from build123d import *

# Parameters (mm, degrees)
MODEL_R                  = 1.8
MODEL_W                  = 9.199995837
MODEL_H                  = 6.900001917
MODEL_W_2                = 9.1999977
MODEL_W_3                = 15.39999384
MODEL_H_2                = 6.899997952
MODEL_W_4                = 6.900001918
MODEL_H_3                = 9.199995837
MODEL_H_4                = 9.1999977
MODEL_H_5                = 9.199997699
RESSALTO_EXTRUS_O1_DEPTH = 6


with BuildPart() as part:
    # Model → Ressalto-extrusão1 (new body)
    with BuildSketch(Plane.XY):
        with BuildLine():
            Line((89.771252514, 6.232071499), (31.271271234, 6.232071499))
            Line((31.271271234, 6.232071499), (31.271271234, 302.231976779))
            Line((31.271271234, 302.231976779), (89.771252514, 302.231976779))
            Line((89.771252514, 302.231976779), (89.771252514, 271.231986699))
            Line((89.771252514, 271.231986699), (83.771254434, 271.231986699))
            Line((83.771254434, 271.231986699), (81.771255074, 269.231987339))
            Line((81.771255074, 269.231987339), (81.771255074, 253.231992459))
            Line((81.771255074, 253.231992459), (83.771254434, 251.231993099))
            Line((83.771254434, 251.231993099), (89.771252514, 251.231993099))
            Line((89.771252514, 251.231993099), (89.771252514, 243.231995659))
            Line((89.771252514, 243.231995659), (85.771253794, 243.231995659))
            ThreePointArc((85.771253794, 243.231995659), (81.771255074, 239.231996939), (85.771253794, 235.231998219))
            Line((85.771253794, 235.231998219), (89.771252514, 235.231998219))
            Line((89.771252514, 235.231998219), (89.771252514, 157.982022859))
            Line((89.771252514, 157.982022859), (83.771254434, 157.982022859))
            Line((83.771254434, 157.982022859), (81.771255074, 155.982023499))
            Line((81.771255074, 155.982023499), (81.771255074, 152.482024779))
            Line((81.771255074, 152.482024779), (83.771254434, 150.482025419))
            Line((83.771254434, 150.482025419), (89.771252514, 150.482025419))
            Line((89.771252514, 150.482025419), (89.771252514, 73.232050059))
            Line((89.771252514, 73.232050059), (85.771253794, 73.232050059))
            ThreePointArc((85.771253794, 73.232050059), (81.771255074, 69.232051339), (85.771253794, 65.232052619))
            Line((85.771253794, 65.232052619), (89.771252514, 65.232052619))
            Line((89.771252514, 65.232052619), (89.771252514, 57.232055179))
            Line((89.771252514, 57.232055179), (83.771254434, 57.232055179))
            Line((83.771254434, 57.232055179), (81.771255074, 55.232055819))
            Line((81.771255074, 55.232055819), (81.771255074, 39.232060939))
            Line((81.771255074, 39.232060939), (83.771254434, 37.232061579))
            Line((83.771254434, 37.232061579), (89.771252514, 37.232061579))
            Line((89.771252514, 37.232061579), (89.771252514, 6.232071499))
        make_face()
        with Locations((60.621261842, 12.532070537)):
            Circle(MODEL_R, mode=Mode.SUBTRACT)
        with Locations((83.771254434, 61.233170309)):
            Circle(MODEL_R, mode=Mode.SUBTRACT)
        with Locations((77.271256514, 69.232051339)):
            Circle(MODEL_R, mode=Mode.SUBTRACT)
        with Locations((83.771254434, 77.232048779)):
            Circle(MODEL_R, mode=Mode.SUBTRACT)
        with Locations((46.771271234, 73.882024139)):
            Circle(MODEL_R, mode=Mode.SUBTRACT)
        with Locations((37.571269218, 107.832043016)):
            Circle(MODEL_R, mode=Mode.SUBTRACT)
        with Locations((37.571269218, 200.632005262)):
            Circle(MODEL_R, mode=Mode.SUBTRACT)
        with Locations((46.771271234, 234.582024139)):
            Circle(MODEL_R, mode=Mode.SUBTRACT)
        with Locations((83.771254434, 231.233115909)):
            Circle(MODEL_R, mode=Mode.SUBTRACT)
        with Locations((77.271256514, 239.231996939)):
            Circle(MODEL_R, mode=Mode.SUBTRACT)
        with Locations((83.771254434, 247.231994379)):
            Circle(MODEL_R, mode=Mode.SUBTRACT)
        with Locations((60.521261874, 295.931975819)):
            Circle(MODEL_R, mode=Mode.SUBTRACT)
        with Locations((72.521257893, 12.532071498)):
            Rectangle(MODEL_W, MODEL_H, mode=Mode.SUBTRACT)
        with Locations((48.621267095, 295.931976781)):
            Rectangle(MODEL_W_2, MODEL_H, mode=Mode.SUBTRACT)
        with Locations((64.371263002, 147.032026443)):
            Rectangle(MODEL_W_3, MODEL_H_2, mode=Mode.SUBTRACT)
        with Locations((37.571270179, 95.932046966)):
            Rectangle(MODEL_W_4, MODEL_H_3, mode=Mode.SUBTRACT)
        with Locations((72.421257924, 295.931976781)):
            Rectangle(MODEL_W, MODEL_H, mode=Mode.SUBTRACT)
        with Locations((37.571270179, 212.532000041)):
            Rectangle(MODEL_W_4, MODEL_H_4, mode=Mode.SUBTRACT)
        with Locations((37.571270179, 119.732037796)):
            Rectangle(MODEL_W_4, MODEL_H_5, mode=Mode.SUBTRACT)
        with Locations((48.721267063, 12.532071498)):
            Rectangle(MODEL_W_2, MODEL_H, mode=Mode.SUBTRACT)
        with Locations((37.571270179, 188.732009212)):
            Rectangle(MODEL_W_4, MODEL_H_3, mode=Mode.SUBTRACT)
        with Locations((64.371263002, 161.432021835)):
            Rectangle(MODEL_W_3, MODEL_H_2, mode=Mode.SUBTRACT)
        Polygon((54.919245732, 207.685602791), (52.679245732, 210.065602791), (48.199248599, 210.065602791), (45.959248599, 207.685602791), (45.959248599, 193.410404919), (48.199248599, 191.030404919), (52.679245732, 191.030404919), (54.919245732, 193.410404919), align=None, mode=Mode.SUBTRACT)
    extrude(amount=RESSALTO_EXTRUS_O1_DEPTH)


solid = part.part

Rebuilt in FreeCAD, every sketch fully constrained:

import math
import FreeCAD as App
import Part
import Sketcher
Q = App.Units.Quantity


def add_polygon(sketch, points):
    """Adds a closed chain of lines whose ends are joined by coincident constraints."""
    first, n = sketch.GeometryCount, len(points)
    for a, b in zip(points, points[1:] + points[:1]):
        sketch.addGeometry(Part.LineSegment(App.Vector(*a, 0), App.Vector(*b, 0)), False)
    for i in range(n):
        sketch.addConstraint(Sketcher.Constraint("Coincident", first + i, 2, first + (i + 1) % n, 1))

doc = App.newDocument("Part")
body = doc.addObject("PartDesign::Body", "Body")

# Sketch on XY plane
sketch1 = body.newObject("Sketcher::SketchObject", "Sketch")
sketch1.AttachmentSupport = (doc.getObject("XY_Plane"), [""])
sketch1.MapMode = "FlatFace"
sketch1.addGeometry(Part.LineSegment(App.Vector(31.3, 6.2, 0), App.Vector(89.8, 6.2, 0)), False)  # 0
sketch1.addGeometry(Part.LineSegment(App.Vector(89.8, 6.2, 0), App.Vector(89.8, 37.2, 0)), False)  # 1
sketch1.addGeometry(Part.LineSegment(App.Vector(89.8, 37.2, 0), App.Vector(83.8, 37.2, 0)), False)  # 2
sketch1.addGeometry(Part.LineSegment(App.Vector(83.8, 37.2, 0), App.Vector(81.8, 39.2, 0)), False)  # 3
sketch1.addGeometry(Part.LineSegment(App.Vector(81.8, 39.2, 0), App.Vector(81.8, 55.2, 0)), False)  # 4
sketch1.addGeometry(Part.LineSegment(App.Vector(81.8, 55.2, 0), App.Vector(83.8, 57.2, 0)), False)  # 5
sketch1.addGeometry(Part.LineSegment(App.Vector(83.8, 57.2, 0), App.Vector(89.8, 57.2, 0)), False)  # 6
sketch1.addGeometry(Part.LineSegment(App.Vector(89.8, 57.2, 0), App.Vector(89.8, 65.2, 0)), False)  # 7
sketch1.addGeometry(Part.LineSegment(App.Vector(89.8, 65.2, 0), App.Vector(85.8, 65.2, 0)), False)  # 8
sketch1.addGeometry(Part.ArcOfCircle(Part.Circle(App.Vector(85.8, 69.2, 0), App.Vector(0, 0, 1), 4), math.radians(90), math.radians(270)), False)  # 9
sketch1.addGeometry(Part.LineSegment(App.Vector(85.8, 73.2, 0), App.Vector(89.8, 73.2, 0)), False)  # 10
sketch1.addGeometry(Part.LineSegment(App.Vector(89.8, 73.2, 0), App.Vector(89.8, 150.5, 0)), False)  # 11
sketch1.addGeometry(Part.LineSegment(App.Vector(89.8, 150.5, 0), App.Vector(83.8, 150.5, 0)), False)  # 12
sketch1.addGeometry(Part.LineSegment(App.Vector(83.8, 150.5, 0), App.Vector(81.8, 152.5, 0)), False)  # 13
sketch1.addGeometry(Part.LineSegment(App.Vector(81.8, 152.5, 0), App.Vector(81.8, 156, 0)), False)  # 14
sketch1.addGeometry(Part.LineSegment(App.Vector(81.8, 156, 0), App.Vector(83.8, 158, 0)), False)  # 15
sketch1.addGeometry(Part.LineSegment(App.Vector(83.8, 158, 0), App.Vector(89.8, 158, 0)), False)  # 16
sketch1.addGeometry(Part.LineSegment(App.Vector(89.8, 158, 0), App.Vector(89.8, 235.2, 0)), False)  # 17
sketch1.addGeometry(Part.LineSegment(App.Vector(89.8, 235.2, 0), App.Vector(85.8, 235.2, 0)), False)  # 18
sketch1.addGeometry(Part.ArcOfCircle(Part.Circle(App.Vector(85.8, 239.2, 0), App.Vector(0, 0, 1), 4), math.radians(90), math.radians(270)), False)  # 19
sketch1.addGeometry(Part.LineSegment(App.Vector(85.8, 243.2, 0), App.Vector(89.8, 243.2, 0)), False)  # 20
sketch1.addGeometry(Part.LineSegment(App.Vector(89.8, 243.2, 0), App.Vector(89.8, 251.2, 0)), False)  # 21
sketch1.addGeometry(Part.LineSegment(App.Vector(89.8, 251.2, 0), App.Vector(83.8, 251.2, 0)), False)  # 22
sketch1.addGeometry(Part.LineSegment(App.Vector(83.8, 251.2, 0), App.Vector(81.8, 253.2, 0)), False)  # 23
sketch1.addGeometry(Part.LineSegment(App.Vector(81.8, 253.2, 0), App.Vector(81.8, 269.2, 0)), False)  # 24
sketch1.addGeometry(Part.LineSegment(App.Vector(81.8, 269.2, 0), App.Vector(83.8, 271.2, 0)), False)  # 25
sketch1.addGeometry(Part.LineSegment(App.Vector(83.8, 271.2, 0), App.Vector(89.8, 271.2, 0)), False)  # 26
sketch1.addGeometry(Part.LineSegment(App.Vector(89.8, 271.2, 0), App.Vector(89.8, 302.2, 0)), False)  # 27
sketch1.addGeometry(Part.LineSegment(App.Vector(89.8, 302.2, 0), App.Vector(31.3, 302.2, 0)), False)  # 28
sketch1.addGeometry(Part.LineSegment(App.Vector(31.3, 302.2, 0), App.Vector(31.3, 6.2, 0)), False)  # 29
sketch1.addGeometry(Part.Circle(App.Vector(83.8, 61.2, 0), App.Vector(0, 0, 1), 1.8), False)  # 30
sketch1.addGeometry(Part.Circle(App.Vector(83.8, 77.2, 0), App.Vector(0, 0, 1), 1.8), False)  # 31
sketch1.addGeometry(Part.Circle(App.Vector(77.3, 69.2, 0), App.Vector(0, 0, 1), 1.8), False)  # 32
add_polygon(sketch1, [(67.9, 9.1), (67.9, 16), (77.1, 16), (77.1, 9.1)])  # lines 33-36
sketch1.addGeometry(Part.Circle(App.Vector(60.6, 12.5, 0), App.Vector(0, 0, 1), 1.8), False)  # 37
add_polygon(sketch1, [(56.7, 143.6), (56.7, 150.5), (72.1, 150.5), (72.1, 143.6)])  # lines 38-41
add_polygon(sketch1, [(44.1, 9.1), (44.1, 16), (53.3, 16), (53.3, 9.1)])  # lines 42-45
sketch1.addGeometry(Part.Circle(App.Vector(46.8, 73.9, 0), App.Vector(0, 0, 1), 1.8), False)  # 46
add_polygon(sketch1, [(34.1, 91.3), (34.1, 100.5), (41, 100.5), (41, 91.3)])  # lines 47-50
sketch1.addGeometry(Part.Circle(App.Vector(37.6, 107.8, 0), App.Vector(0, 0, 1), 1.8), False)  # 51
add_polygon(sketch1, [(34.1, 115.1), (34.1, 124.3), (41, 124.3), (41, 115.1)])  # lines 52-55
add_polygon(sketch1, [(56.7, 158), (56.7, 164.9), (72.1, 164.9), (72.1, 158)])  # lines 56-59
sketch1.addGeometry(Part.Circle(App.Vector(83.8, 231.2, 0), App.Vector(0, 0, 1), 1.8), False)  # 60
sketch1.addGeometry(Part.Circle(App.Vector(83.8, 247.2, 0), App.Vector(0, 0, 1), 1.8), False)  # 61
sketch1.addGeometry(Part.Circle(App.Vector(77.3, 239.2, 0), App.Vector(0, 0, 1), 1.8), False)  # 62
add_polygon(sketch1, [(67.8, 292.5), (67.8, 299.4), (77, 299.4), (77, 292.5)])  # lines 63-66
sketch1.addGeometry(Part.Circle(App.Vector(60.5, 295.9, 0), App.Vector(0, 0, 1), 1.8), False)  # 67
add_polygon(sketch1, [(54.9, 207.7), (54.9, 193.4), (52.7, 191), (48.2, 191), (46, 193.4), (46, 207.7), (48.2, 210.1), (52.7, 210.1)])  # lines 68-75
add_polygon(sketch1, [(34.1, 184.1), (34.1, 193.3), (41, 193.3), (41, 184.1)])  # lines 76-79
sketch1.addGeometry(Part.Circle(App.Vector(37.6, 200.6, 0), App.Vector(0, 0, 1), 1.8), False)  # 80
add_polygon(sketch1, [(34.1, 207.9), (34.1, 217.1), (41, 217.1), (41, 207.9)])  # lines 81-84
add_polygon(sketch1, [(44, 292.5), (44, 299.4), (53.2, 299.4), (53.2, 292.5)])  # lines 85-88
sketch1.addGeometry(Part.Circle(App.Vector(46.8, 234.6, 0), App.Vector(0, 0, 1), 1.8), False)  # 89
sketch1.addConstraint([
    Sketcher.Constraint("Coincident", 0, 2, 1, 1),
    Sketcher.Constraint("Coincident", 1, 2, 2, 1),
    Sketcher.Constraint("Coincident", 2, 2, 3, 1),
    Sketcher.Constraint("Coincident", 3, 2, 4, 1),
    Sketcher.Constraint("Coincident", 4, 2, 5, 1),
    Sketcher.Constraint("Coincident", 5, 2, 6, 1),
    Sketcher.Constraint("Coincident", 6, 2, 7, 1),
    Sketcher.Constraint("Coincident", 7, 2, 8, 1),
    Sketcher.Constraint("Tangent", 8, 2, 9, 2),
    Sketcher.Constraint("Tangent", 9, 1, 10, 1),
    Sketcher.Constraint("Coincident", 10, 2, 11, 1),
    Sketcher.Constraint("Coincident", 11, 2, 12, 1),
    Sketcher.Constraint("Coincident", 12, 2, 13, 1),
    Sketcher.Constraint("Coincident", 13, 2, 14, 1),
    Sketcher.Constraint("Coincident", 14, 2, 15, 1),
    Sketcher.Constraint("Coincident", 15, 2, 16, 1),
    Sketcher.Constraint("Coincident", 16, 2, 17, 1),
    Sketcher.Constraint("Coincident", 17, 2, 18, 1),
    Sketcher.Constraint("Tangent", 18, 2, 19, 2),
    Sketcher.Constraint("Tangent", 19, 1, 20, 1),
    Sketcher.Constraint("Coincident", 20, 2, 21, 1),
    Sketcher.Constraint("Coincident", 21, 2, 22, 1),
    Sketcher.Constraint("Coincident", 22, 2, 23, 1),
    Sketcher.Constraint("Coincident", 23, 2, 24, 1),
    Sketcher.Constraint("Coincident", 24, 2, 25, 1),
    Sketcher.Constraint("Coincident", 25, 2, 26, 1),
    Sketcher.Constraint("Coincident", 26, 2, 27, 1),
    Sketcher.Constraint("Coincident", 27, 2, 28, 1),
    Sketcher.Constraint("Coincident", 28, 2, 29, 1),
    Sketcher.Constraint("Coincident", 29, 2, 0, 1),
    Sketcher.Constraint("Horizontal", 0),
    Sketcher.Constraint("Vertical", 1),
    Sketcher.Constraint("Horizontal", 2),
    Sketcher.Constraint("Vertical", 4),
    Sketcher.Constraint("Horizontal", 6),
    Sketcher.Constraint("Vertical", 7),
    Sketcher.Constraint("Horizontal", 8),
    Sketcher.Constraint("Horizontal", 10),
    Sketcher.Constraint("Vertical", 11),
    Sketcher.Constraint("Horizontal", 12),
    Sketcher.Constraint("Vertical", 14),
    Sketcher.Constraint("Horizontal", 16),
    Sketcher.Constraint("Vertical", 17),
    Sketcher.Constraint("Horizontal", 18),
    Sketcher.Constraint("Horizontal", 20),
    Sketcher.Constraint("Vertical", 21),
    Sketcher.Constraint("Horizontal", 22),
    Sketcher.Constraint("Vertical", 24),
    Sketcher.Constraint("Horizontal", 26),
    Sketcher.Constraint("Vertical", 27),
    Sketcher.Constraint("Horizontal", 28),
    Sketcher.Constraint("Vertical", 29),
    Sketcher.Constraint("Vertical", 33),
    Sketcher.Constraint("Horizontal", 34),
    Sketcher.Constraint("Vertical", 35),
    Sketcher.Constraint("Horizontal", 36),
    Sketcher.Constraint("Vertical", 38),
    Sketcher.Constraint("Horizontal", 39),
    Sketcher.Constraint("Vertical", 40),
    Sketcher.Constraint("Horizontal", 41),
    Sketcher.Constraint("Vertical", 42),
    Sketcher.Constraint("Horizontal", 43),
    Sketcher.Constraint("Vertical", 44),
    Sketcher.Constraint("Horizontal", 45),
    Sketcher.Constraint("Vertical", 47),
    Sketcher.Constraint("Horizontal", 48),
    Sketcher.Constraint("Vertical", 49),
    Sketcher.Constraint("Horizontal", 50),
    Sketcher.Constraint("Vertical", 52),
    Sketcher.Constraint("Horizontal", 53),
    Sketcher.Constraint("Vertical", 54),
    Sketcher.Constraint("Horizontal", 55),
    Sketcher.Constraint("Vertical", 56),
    Sketcher.Constraint("Horizontal", 57),
    Sketcher.Constraint("Vertical", 58),
    Sketcher.Constraint("Horizontal", 59),
    Sketcher.Constraint("Vertical", 63),
    Sketcher.Constraint("Horizontal", 64),
    Sketcher.Constraint("Vertical", 65),
    Sketcher.Constraint("Horizontal", 66),
    Sketcher.Constraint("Vertical", 68),
    Sketcher.Constraint("Horizontal", 70),
    Sketcher.Constraint("Vertical", 72),
    Sketcher.Constraint("Horizontal", 74),
    Sketcher.Constraint("Vertical", 76),
    Sketcher.Constraint("Horizontal", 77),
    Sketcher.Constraint("Vertical", 78),
    Sketcher.Constraint("Horizontal", 79),
    Sketcher.Constraint("Vertical", 81),
    Sketcher.Constraint("Horizontal", 82),
    Sketcher.Constraint("Vertical", 83),
    Sketcher.Constraint("Horizontal", 84),
    Sketcher.Constraint("Vertical", 85),
    Sketcher.Constraint("Horizontal", 86),
    Sketcher.Constraint("Vertical", 87),
    Sketcher.Constraint("Horizontal", 88),
    Sketcher.Constraint("Equal", 9, 19),
    Sketcher.Constraint("Equal", 30, 31),
    Sketcher.Constraint("Equal", 31, 32),
    Sketcher.Constraint("Equal", 32, 37),
    Sketcher.Constraint("Equal", 37, 46),
    Sketcher.Constraint("Equal", 46, 51),
    Sketcher.Constraint("Equal", 51, 60),
    Sketcher.Constraint("Equal", 60, 61),
    Sketcher.Constraint("Equal", 61, 62),
    Sketcher.Constraint("Equal", 62, 67),
    Sketcher.Constraint("Equal", 67, 80),
    Sketcher.Constraint("Equal", 80, 89),
    Sketcher.Constraint("Perpendicular", 3, 5),
    Sketcher.Constraint("Perpendicular", 5, 13),
    Sketcher.Constraint("Perpendicular", 13, 15),
    Sketcher.Constraint("Perpendicular", 15, 23),
    Sketcher.Constraint("Perpendicular", 23, 25),
    Sketcher.Constraint("Parallel", 69, 73),
    Sketcher.Constraint("Parallel", 71, 75),
    Sketcher.Constraint("Horizontal", 9, 3, 32, 3),
    Sketcher.Constraint("Horizontal", 19, 3, 62, 3),
    Sketcher.Constraint("Horizontal", 12, 2, 38, 2),
    Sketcher.Constraint("Horizontal", 34, 2, 42, 2),
    Sketcher.Constraint("Horizontal", 36, 2, 44, 2),
    Sketcher.Constraint("Horizontal", 16, 2, 58, 2),
    Sketcher.Constraint("Horizontal", 68, 2, 71, 2),
    Sketcher.Constraint("Horizontal", 72, 2, 75, 2),
    Sketcher.Constraint("Horizontal", 64, 2, 85, 2),
    Sketcher.Constraint("Horizontal", 66, 2, 87, 2),
    Sketcher.Constraint("Vertical", 9, 3, 19, 3),
    Sketcher.Constraint("Vertical", 30, 3, 31, 3),
    Sketcher.Constraint("Vertical", 31, 3, 60, 3),
    Sketcher.Constraint("Vertical", 60, 3, 61, 3),
    Sketcher.Constraint("Vertical", 32, 3, 62, 3),
    Sketcher.Constraint("Vertical", 51, 3, 80, 3),
    Sketcher.Constraint("Vertical", 46, 3, 89, 3),
    Sketcher.Constraint("Vertical", 61, 3, 2, 2),
    Sketcher.Constraint("Vertical", 2, 2, 5, 2),
    Sketcher.Constraint("Vertical", 1, 2, 6, 2),
    Sketcher.Constraint("Vertical", 7, 2, 10, 2),
    Sketcher.Constraint("Vertical", 5, 2, 12, 2),
    Sketcher.Constraint("Vertical", 4, 2, 13, 2),
    Sketcher.Constraint("Vertical", 12, 2, 15, 2),
    Sketcher.Constraint("Vertical", 11, 2, 16, 2),
    Sketcher.Constraint("Vertical", 17, 2, 20, 2),
    Sketcher.Constraint("Vertical", 15, 2, 22, 2),
    Sketcher.Constraint("Vertical", 14, 2, 23, 2),
    Sketcher.Constraint("Vertical", 22, 2, 25, 2),
    Sketcher.Constraint("Vertical", 21, 2, 26, 2),
    Sketcher.Constraint("Vertical", 50, 2, 52, 2),
    Sketcher.Constraint("Vertical", 49, 2, 53, 2),
    Sketcher.Constraint("Vertical", 41, 2, 56, 2),
    Sketcher.Constraint("Vertical", 40, 2, 57, 2),
    Sketcher.Constraint("Vertical", 70, 2, 73, 2),
    Sketcher.Constraint("Vertical", 69, 2, 74, 2),
    Sketcher.Constraint("Vertical", 55, 2, 76, 2),
    Sketcher.Constraint("Vertical", 54, 2, 77, 2),
    Sketcher.Constraint("Vertical", 79, 2, 81, 2),
    Sketcher.Constraint("Vertical", 78, 2, 82, 2),
    Sketcher.Constraint("Equal", 36, 43),
    Sketcher.Constraint("Equal", 45, 64),
    Sketcher.Constraint("Equal", 66, 86),
    Sketcher.Constraint("Equal", 11, 17),
    Sketcher.Constraint("Equal", 7, 21),
    Sketcher.Constraint("Equal", 4, 24),
    Sketcher.Constraint("Equal", 1, 27),
    Sketcher.Constraint("Equal", 84, 33),
    Sketcher.Constraint("Equal", 88, 47),
    Sketcher.Constraint("Equal", 49, 52),
    Sketcher.Constraint("Equal", 40, 56),
    Sketcher.Constraint("Equal", 44, 63),
    Sketcher.Constraint("Equal", 54, 76),
    Sketcher.Constraint("Equal", 78, 81),
    Sketcher.Constraint("Equal", 3, 5),
    Sketcher.Constraint("Radius", 9, Q("3.999999 mm")),
    Sketcher.Constraint("Diameter", 30, Q("3.6 mm")),
    Sketcher.Constraint("DistanceX", 2, 2, 2, 1, Q("5.999998 mm")),
    Sketcher.Constraint("DistanceX", 8, 2, 8, 1, Q("3.999999 mm")),
    Sketcher.Constraint("DistanceX", 48, 1, 48, 2, Q("6.900002 mm")),
    Sketcher.Constraint("DistanceY", 14, 1, 14, 2, Q("3.499999 mm")),
    Sketcher.Constraint("DistanceY", -1, 1, 17, 2, Q("235.231998 mm")),
    Sketcher.Constraint("DistanceY", -1, 1, 81, 2, Q("217.131999 mm")),
    Sketcher.Constraint("DistanceY", -1, 1, 83, 2, Q("207.932001 mm")),
    Sketcher.Constraint("DistanceX", 0, 1, 0, 2, Q("58.499981 mm")),
    Sketcher.Constraint("DistanceY", 1, 1, 1, 2, Q("30.99999 mm")),
    Sketcher.Constraint("DistanceX", 39, 1, 39, 2, Q("15.399994 mm")),
    Sketcher.Constraint("DistanceX", 70, 2, 70, 1, Q("4.479997 mm")),
    Sketcher.Constraint("DistanceY", 4, 1, 4, 2, Q("15.999995 mm")),
    Sketcher.Constraint("DistanceY", 7, 1, 7, 2, Q("7.999997 mm")),
    Sketcher.Constraint("DistanceY", 11, 1, 11, 2, Q("77.249975 mm")),
    Sketcher.Constraint("DistanceY", 29, 2, 29, 1, Q("295.999905 mm")),
    Sketcher.Constraint("DistanceY", 38, 1, 38, 2, Q("6.899998 mm")),
    Sketcher.Constraint("DistanceY", 68, 2, 68, 1, Q("14.275198 mm")),
    Sketcher.Constraint("DistanceY", -1, 1, 30, 3, Q("61.23317 mm")),
    Sketcher.Constraint("DistanceY", -1, 1, 31, 3, Q("77.232049 mm")),
    Sketcher.Constraint("DistanceX", -1, 1, 37, 3, Q("60.621262 mm")),
    Sketcher.Constraint("DistanceY", -1, 1, 37, 3, Q("12.532071 mm")),
    Sketcher.Constraint("DistanceX", -1, 1, 46, 3, Q("46.771271 mm")),
    Sketcher.Constraint("DistanceX", -1, 1, 51, 3, Q("37.571269 mm")),
    Sketcher.Constraint("DistanceX", -1, 1, 67, 3, Q("60.521262 mm")),
    Sketcher.Constraint("DistanceX", -1, 1, 28, 2, Q("31.271271 mm")),
    Sketcher.Constraint("DistanceX", -1, 1, 33, 2, Q("67.92126 mm")),
    Sketcher.Constraint("DistanceY", -1, 1, 35, 2, Q("9.082071 mm")),
    Sketcher.Constraint("DistanceX", -1, 1, 39, 2, Q("72.07126 mm")),
    Sketcher.Constraint("DistanceX", -1, 1, 42, 2, Q("44.121268 mm")),
    Sketcher.Constraint("DistanceX", -1, 1, 47, 2, Q("34.121269 mm")),
    Sketcher.Constraint("DistanceY", -1, 1, 49, 2, Q("91.332049 mm")),
    Sketcher.Constraint("DistanceY", -1, 1, 54, 2, Q("115.132039 mm")),
    Sketcher.Constraint("DistanceX", -1, 1, 63, 2, Q("67.82126 mm")),
    Sketcher.Constraint("DistanceX", -1, 1, 70, 2, Q("48.199249 mm")),
    Sketcher.Constraint("DistanceX", -1, 1, 71, 2, Q("45.959249 mm")),
    Sketcher.Constraint("DistanceY", -1, 1, 78, 2, Q("184.132011 mm")),
    Sketcher.Constraint("DistanceX", -1, 1, 85, 2, Q("44.021268 mm")),
    Sketcher.Constraint("Distance", 69, Q("3.268333 mm")),
    Sketcher.Constraint("DistanceX", -1, 1, 32, 3, Q("77.271257 mm")),
    Sketcher.Constraint("DistanceY", -1, 1, 46, 3, Q("73.882024 mm")),
    Sketcher.Constraint("DistanceY", -1, 1, 51, 3, Q("107.832043 mm")),
    Sketcher.Constraint("DistanceY", -1, 1, 60, 3, Q("231.233116 mm")),
    Sketcher.Constraint("DistanceY", -1, 1, 61, 3, Q("247.231994 mm")),
    Sketcher.Constraint("DistanceY", -1, 1, 67, 3, Q("295.931976 mm")),
    Sketcher.Constraint("DistanceY", -1, 1, 80, 3, Q("200.632005 mm")),
    Sketcher.Constraint("DistanceY", -1, 1, 89, 3, Q("234.582024 mm")),
    Sketcher.Constraint("DistanceY", -1, 1, 63, 2, Q("299.381978 mm")),
    Sketcher.Constraint("DistanceY", -1, 1, 68, 2, Q("193.410405 mm")),
])
pad1 = body.newObject("PartDesign::Pad", "Pad")
pad1.Profile = sketch1
pad1.Length = 6

doc.recompute()
